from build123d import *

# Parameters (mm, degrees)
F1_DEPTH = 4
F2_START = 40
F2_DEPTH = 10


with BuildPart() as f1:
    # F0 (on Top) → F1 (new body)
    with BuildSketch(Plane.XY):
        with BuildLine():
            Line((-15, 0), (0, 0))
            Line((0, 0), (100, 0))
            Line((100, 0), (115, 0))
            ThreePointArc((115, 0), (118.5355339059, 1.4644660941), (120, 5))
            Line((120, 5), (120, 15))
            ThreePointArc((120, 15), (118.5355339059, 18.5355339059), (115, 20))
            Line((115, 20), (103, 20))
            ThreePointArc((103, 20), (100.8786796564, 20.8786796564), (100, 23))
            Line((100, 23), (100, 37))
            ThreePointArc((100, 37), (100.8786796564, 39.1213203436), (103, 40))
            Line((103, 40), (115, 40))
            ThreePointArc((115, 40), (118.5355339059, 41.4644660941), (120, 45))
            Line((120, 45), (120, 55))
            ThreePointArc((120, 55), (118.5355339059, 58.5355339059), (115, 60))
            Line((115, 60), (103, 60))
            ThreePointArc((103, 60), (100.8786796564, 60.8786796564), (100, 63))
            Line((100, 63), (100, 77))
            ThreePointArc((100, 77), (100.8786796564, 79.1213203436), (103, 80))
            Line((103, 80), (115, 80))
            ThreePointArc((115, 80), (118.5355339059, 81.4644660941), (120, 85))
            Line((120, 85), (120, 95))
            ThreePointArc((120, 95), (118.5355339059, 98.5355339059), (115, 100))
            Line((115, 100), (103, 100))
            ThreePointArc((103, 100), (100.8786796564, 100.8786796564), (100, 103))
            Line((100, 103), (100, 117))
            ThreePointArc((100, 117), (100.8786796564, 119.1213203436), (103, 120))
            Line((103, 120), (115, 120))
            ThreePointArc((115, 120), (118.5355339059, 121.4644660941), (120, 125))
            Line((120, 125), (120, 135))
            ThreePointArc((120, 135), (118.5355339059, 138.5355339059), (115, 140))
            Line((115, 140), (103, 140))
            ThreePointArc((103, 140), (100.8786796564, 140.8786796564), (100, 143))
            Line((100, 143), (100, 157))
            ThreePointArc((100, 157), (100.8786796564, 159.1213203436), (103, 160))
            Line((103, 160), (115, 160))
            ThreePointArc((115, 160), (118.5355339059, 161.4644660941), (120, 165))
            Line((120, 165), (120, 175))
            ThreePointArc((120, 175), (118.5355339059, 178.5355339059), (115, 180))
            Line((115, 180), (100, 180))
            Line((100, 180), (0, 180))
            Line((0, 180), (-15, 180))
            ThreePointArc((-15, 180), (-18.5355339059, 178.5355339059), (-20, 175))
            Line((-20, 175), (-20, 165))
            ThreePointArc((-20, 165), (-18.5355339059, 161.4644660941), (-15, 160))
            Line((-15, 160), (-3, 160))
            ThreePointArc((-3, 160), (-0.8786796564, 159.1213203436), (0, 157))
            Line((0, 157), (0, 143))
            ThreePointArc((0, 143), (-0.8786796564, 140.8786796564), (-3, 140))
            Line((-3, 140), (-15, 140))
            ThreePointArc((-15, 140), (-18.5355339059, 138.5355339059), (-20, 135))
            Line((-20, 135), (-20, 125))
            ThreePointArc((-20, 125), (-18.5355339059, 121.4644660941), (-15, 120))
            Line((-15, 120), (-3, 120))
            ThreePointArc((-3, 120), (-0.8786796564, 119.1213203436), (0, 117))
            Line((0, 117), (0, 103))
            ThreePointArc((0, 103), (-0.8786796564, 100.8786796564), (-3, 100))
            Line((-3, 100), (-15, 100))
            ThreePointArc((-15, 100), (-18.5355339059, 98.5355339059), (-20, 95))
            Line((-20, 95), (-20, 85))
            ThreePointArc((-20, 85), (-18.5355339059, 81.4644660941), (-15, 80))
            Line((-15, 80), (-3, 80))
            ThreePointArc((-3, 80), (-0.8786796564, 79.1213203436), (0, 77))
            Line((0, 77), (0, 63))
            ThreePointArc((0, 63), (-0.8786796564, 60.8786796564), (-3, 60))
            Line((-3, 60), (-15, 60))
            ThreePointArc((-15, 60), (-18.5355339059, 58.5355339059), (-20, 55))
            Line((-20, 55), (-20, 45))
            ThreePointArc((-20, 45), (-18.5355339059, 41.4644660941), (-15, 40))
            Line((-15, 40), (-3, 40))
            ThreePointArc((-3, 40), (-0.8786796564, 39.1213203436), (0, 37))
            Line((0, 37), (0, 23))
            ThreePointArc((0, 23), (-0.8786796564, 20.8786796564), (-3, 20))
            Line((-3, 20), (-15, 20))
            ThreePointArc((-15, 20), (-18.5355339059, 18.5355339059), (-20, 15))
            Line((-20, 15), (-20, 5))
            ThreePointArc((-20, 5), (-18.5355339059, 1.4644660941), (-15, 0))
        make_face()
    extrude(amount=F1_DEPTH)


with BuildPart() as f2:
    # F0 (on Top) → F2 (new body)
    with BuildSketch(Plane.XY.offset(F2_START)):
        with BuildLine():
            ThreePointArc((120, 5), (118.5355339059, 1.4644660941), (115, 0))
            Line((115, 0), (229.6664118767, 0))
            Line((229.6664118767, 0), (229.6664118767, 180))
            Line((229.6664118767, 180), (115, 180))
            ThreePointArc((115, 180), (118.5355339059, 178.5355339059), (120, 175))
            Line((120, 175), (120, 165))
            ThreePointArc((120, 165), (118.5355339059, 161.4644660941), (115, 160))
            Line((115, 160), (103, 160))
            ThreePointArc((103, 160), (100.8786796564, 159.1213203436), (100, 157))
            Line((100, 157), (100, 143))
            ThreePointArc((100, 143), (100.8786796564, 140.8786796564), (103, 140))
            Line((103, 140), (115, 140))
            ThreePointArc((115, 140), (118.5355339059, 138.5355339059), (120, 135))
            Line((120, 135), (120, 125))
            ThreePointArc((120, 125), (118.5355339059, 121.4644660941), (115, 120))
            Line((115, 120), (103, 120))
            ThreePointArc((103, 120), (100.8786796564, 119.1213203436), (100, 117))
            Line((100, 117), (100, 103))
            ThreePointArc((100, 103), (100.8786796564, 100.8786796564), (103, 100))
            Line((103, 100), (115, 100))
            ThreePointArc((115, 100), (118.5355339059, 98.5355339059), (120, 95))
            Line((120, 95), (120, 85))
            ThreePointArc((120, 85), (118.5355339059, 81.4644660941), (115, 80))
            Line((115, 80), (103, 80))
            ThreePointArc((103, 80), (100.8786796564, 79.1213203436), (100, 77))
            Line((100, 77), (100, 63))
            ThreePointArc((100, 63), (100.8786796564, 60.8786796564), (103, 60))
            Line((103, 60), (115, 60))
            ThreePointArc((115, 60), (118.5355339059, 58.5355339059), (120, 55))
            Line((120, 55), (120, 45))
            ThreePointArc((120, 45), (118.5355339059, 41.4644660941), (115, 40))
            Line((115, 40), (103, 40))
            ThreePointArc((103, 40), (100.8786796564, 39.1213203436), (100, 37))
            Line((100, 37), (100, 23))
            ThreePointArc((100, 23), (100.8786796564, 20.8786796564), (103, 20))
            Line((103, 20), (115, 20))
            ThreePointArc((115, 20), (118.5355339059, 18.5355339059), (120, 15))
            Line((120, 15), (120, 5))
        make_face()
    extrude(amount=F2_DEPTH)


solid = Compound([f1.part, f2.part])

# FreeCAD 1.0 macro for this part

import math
import FreeCAD as App
import Part
import Sketcher
from FreeCAD import Vector

doc = App.newDocument("Part")
params = doc.addObject("Spreadsheet::Sheet", "Params")
for row, (alias, value) in enumerate([
    ("sketch1_radius", "5 mm"),
    ("sketch1_radius2", "3 mm"),
    ("sketch1_width", "130 mm"),
    ("sketch1_width2", "12 mm"),
    ("sketch1_height", "10 mm"),
    ("pad1_length", "4 mm"),
    ("sketch2_radius", "5 mm"),
    ("sketch2_radius2", "3 mm"),
    ("sketch2_width", "12 mm"),
    ("sketch2_height", "180 mm"),
    ("sketch2_height2", "10 mm"),
    ("pad2_length", "10 mm"),
], start=1):
    params.set(f"A{row}", alias)
    params.set(f"B{row}", "=" + value)
    params.setAlias(f"B{row}", alias)

body = doc.addObject("PartDesign::Body", "Body")

# Sketch on XY plane
sketch1 = body.newObject("Sketcher::SketchObject", "Sketch")
sketch1.AttachmentSupport = (doc.getObject("XY_Plane"), [""])
sketch1.MapMode = "FlatFace"
sketch1.addGeometry([
    Part.LineSegment(Vector(-15, 0, 0), Vector(115, 0, 0)),  # 0
    Part.ArcOfCircle(Part.Circle(Vector(115, 5, 0), Vector(0, 0, 1), 5), math.radians(-90), math.radians(0)),  # 1
    Part.LineSegment(Vector(120, 5, 0), Vector(120, 15, 0)),  # 2
    Part.ArcOfCircle(Part.Circle(Vector(115, 15, 0), Vector(0, 0, 1), 5), math.radians(0), math.radians(90)),  # 3
    Part.LineSegment(Vector(115, 20, 0), Vector(103, 20, 0)),  # 4
    Part.ArcOfCircle(Part.Circle(Vector(103, 23, 0), Vector(0, 0, 1), 3), math.radians(180), math.radians(270)),  # 5
    Part.LineSegment(Vector(100, 23, 0), Vector(100, 37, 0)),  # 6
    Part.ArcOfCircle(Part.Circle(Vector(103, 37, 0), Vector(0, 0, 1), 3), math.radians(90), math.radians(180)),  # 7
    Part.LineSegment(Vector(103, 40, 0), Vector(115, 40, 0)),  # 8
    Part.ArcOfCircle(Part.Circle(Vector(115, 45, 0), Vector(0, 0, 1), 5), math.radians(-90), math.radians(0)),  # 9
    Part.LineSegment(Vector(120, 45, 0), Vector(120, 55, 0)),  # 10
    Part.ArcOfCircle(Part.Circle(Vector(115, 55, 0), Vector(0, 0, 1), 5), math.radians(0), math.radians(90)),  # 11
    Part.LineSegment(Vector(115, 60, 0), Vector(103, 60, 0)),  # 12
    Part.ArcOfCircle(Part.Circle(Vector(103, 63, 0), Vector(0, 0, 1), 3), math.radians(180), math.radians(270)),  # 13
    Part.LineSegment(Vector(100, 63, 0), Vector(100, 77, 0)),  # 14
    Part.ArcOfCircle(Part.Circle(Vector(103, 77, 0), Vector(0, 0, 1), 3), math.radians(90), math.radians(180)),  # 15
    Part.LineSegment(Vector(103, 80, 0), Vector(115, 80, 0)),  # 16
    Part.ArcOfCircle(Part.Circle(Vector(115, 85, 0), Vector(0, 0, 1), 5), math.radians(-90), math.radians(0)),  # 17
    Part.LineSegment(Vector(120, 85, 0), Vector(120, 95, 0)),  # 18
    Part.ArcOfCircle(Part.Circle(Vector(115, 95, 0), Vector(0, 0, 1), 5), math.radians(0), math.radians(90)),  # 19
    Part.LineSegment(Vector(115, 100, 0), Vector(103, 100, 0)),  # 20
    Part.ArcOfCircle(Part.Circle(Vector(103, 103, 0), Vector(0, 0, 1), 3), math.radians(180), math.radians(270)),  # 21
    Part.LineSegment(Vector(100, 103, 0), Vector(100, 117, 0)),  # 22
    Part.ArcOfCircle(Part.Circle(Vector(103, 117, 0), Vector(0, 0, 1), 3), math.radians(90), math.radians(180)),  # 23
    Part.LineSegment(Vector(103, 120, 0), Vector(115, 120, 0)),  # 24
    Part.ArcOfCircle(Part.Circle(Vector(115, 125, 0), Vector(0, 0, 1), 5), math.radians(-90), math.radians(0)),  # 25
    Part.LineSegment(Vector(120, 125, 0), Vector(120, 135, 0)),  # 26
    Part.ArcOfCircle(Part.Circle(Vector(115, 135, 0), Vector(0, 0, 1), 5), math.radians(0), math.radians(90)),  # 27
    Part.LineSegment(Vector(115, 140, 0), Vector(103, 140, 0)),  # 28
    Part.ArcOfCircle(Part.Circle(Vector(103, 143, 0), Vector(0, 0, 1), 3), math.radians(180), math.radians(270)),  # 29
    Part.LineSegment(Vector(100, 143, 0), Vector(100, 157, 0)),  # 30
    Part.ArcOfCircle(Part.Circle(Vector(103, 157, 0), Vector(0, 0, 1), 3), math.radians(90), math.radians(180)),  # 31
    Part.LineSegment(Vector(103, 160, 0), Vector(115, 160, 0)),  # 32
    Part.ArcOfCircle(Part.Circle(Vector(115, 165, 0), Vector(0, 0, 1), 5), math.radians(-90), math.radians(0)),  # 33
    Part.LineSegment(Vector(120, 165, 0), Vector(120, 175, 0)),  # 34
    Part.ArcOfCircle(Part.Circle(Vector(115, 175, 0), Vector(0, 0, 1), 5), math.radians(0), math.radians(90)),  # 35
    Part.LineSegment(Vector(115, 180, 0), Vector(-15, 180, 0)),  # 36
    Part.ArcOfCircle(Part.Circle(Vector(-15, 175, 0), Vector(0, 0, 1), 5), math.radians(90), math.radians(180)),  # 37
    Part.LineSegment(Vector(-20, 175, 0), Vector(-20, 165, 0)),  # 38
    Part.ArcOfCircle(Part.Circle(Vector(-15, 165, 0), Vector(0, 0, 1), 5), math.radians(180), math.radians(270)),  # 39
    Part.LineSegment(Vector(-15, 160, 0), Vector(-3, 160, 0)),  # 40
    Part.ArcOfCircle(Part.Circle(Vector(-3, 157, 0), Vector(0, 0, 1), 3), math.radians(0), math.radians(90)),  # 41
    Part.LineSegment(Vector(0, 157, 0), Vector(0, 143, 0)),  # 42
    Part.ArcOfCircle(Part.Circle(Vector(-3, 143, 0), Vector(0, 0, 1), 3), math.radians(-90), math.radians(0)),  # 43
    Part.LineSegment(Vector(-3, 140, 0), Vector(-15, 140, 0)),  # 44
    Part.ArcOfCircle(Part.Circle(Vector(-15, 135, 0), Vector(0, 0, 1), 5), math.radians(90), math.radians(180)),  # 45
    Part.LineSegment(Vector(-20, 135, 0), Vector(-20, 125, 0)),  # 46
    Part.ArcOfCircle(Part.Circle(Vector(-15, 125, 0), Vector(0, 0, 1), 5), math.radians(180), math.radians(270)),  # 47
    Part.LineSegment(Vector(-15, 120, 0), Vector(-3, 120, 0)),  # 48
    Part.ArcOfCircle(Part.Circle(Vector(-3, 117, 0), Vector(0, 0, 1), 3), math.radians(0), math.radians(90)),  # 49
    Part.LineSegment(Vector(0, 117, 0), Vector(0, 103, 0)),  # 50
    Part.ArcOfCircle(Part.Circle(Vector(-3, 103, 0), Vector(0, 0, 1), 3), math.radians(-90), math.radians(0)),  # 51
    Part.LineSegment(Vector(-3, 100, 0), Vector(-15, 100, 0)),  # 52
    Part.ArcOfCircle(Part.Circle(Vector(-15, 95, 0), Vector(0, 0, 1), 5), math.radians(90), math.radians(180)),  # 53
    Part.LineSegment(Vector(-20, 95, 0), Vector(-20, 85, 0)),  # 54
    Part.ArcOfCircle(Part.Circle(Vector(-15, 85, 0), Vector(0, 0, 1), 5), math.radians(180), math.radians(270)),  # 55
    Part.LineSegment(Vector(-15, 80, 0), Vector(-3, 80, 0)),  # 56
    Part.ArcOfCircle(Part.Circle(Vector(-3, 77, 0), Vector(0, 0, 1), 3), math.radians(0), math.radians(90)),  # 57
    Part.LineSegment(Vector(0, 77, 0), Vector(0, 63, 0)),  # 58
    Part.ArcOfCircle(Part.Circle(Vector(-3, 63, 0), Vector(0, 0, 1), 3), math.radians(-90), math.radians(0)),  # 59
    Part.LineSegment(Vector(-3, 60, 0), Vector(-15, 60, 0)),  # 60
    Part.ArcOfCircle(Part.Circle(Vector(-15, 55, 0), Vector(0, 0, 1), 5), math.radians(90), math.radians(180)),  # 61
    Part.LineSegment(Vector(-20, 55, 0), Vector(-20, 45, 0)),  # 62
    Part.ArcOfCircle(Part.Circle(Vector(-15, 45, 0), Vector(0, 0, 1), 5), math.radians(180), math.radians(270)),  # 63
    Part.LineSegment(Vector(-15, 40, 0), Vector(-3, 40, 0)),  # 64
    Part.ArcOfCircle(Part.Circle(Vector(-3, 37, 0), Vector(0, 0, 1), 3), math.radians(0), math.radians(90)),  # 65
    Part.LineSegment(Vector(0, 37, 0), Vector(0, 23, 0)),  # 66
    Part.ArcOfCircle(Part.Circle(Vector(-3, 23, 0), Vector(0, 0, 1), 3), math.radians(-90), math.radians(0)),  # 67
    Part.LineSegment(Vector(-3, 20, 0), Vector(-15, 20, 0)),  # 68
    Part.ArcOfCircle(Part.Circle(Vector(-15, 15, 0), Vector(0, 0, 1), 5), math.radians(90), math.radians(180)),  # 69
    Part.LineSegment(Vector(-20, 15, 0), Vector(-20, 5, 0)),  # 70
    Part.ArcOfCircle(Part.Circle(Vector(-15, 5, 0), Vector(0, 0, 1), 5), math.radians(180), math.radians(270)),  # 71
], False)
sketch1.addConstraint([
    Sketcher.Constraint("Tangent", 0, 2, 1, 1),
    Sketcher.Constraint("Tangent", 1, 2, 2, 1),
    Sketcher.Constraint("Tangent", 2, 2, 3, 1),
    Sketcher.Constraint("Tangent", 3, 2, 4, 1),
    Sketcher.Constraint("Tangent", 4, 2, 5, 2),
    Sketcher.Constraint("Tangent", 5, 1, 6, 1),
    Sketcher.Constraint("Tangent", 6, 2, 7, 2),
    Sketcher.Constraint("Tangent", 7, 1, 8, 1),
    Sketcher.Constraint("Tangent", 8, 2, 9, 1),
    Sketcher.Constraint("Tangent", 9, 2, 10, 1),
    Sketcher.Constraint("Tangent", 10, 2, 11, 1),
    Sketcher.Constraint("Tangent", 11, 2, 12, 1),
    Sketcher.Constraint("Tangent", 12, 2, 13, 2),
    Sketcher.Constraint("Tangent", 13, 1, 14, 1),
    Sketcher.Constraint("Tangent", 14, 2, 15, 2),
    Sketcher.Constraint("Tangent", 15, 1, 16, 1),
    Sketcher.Constraint("Tangent", 16, 2, 17, 1),
    Sketcher.Constraint("Tangent", 17, 2, 18, 1),
    Sketcher.Constraint("Tangent", 18, 2, 19, 1),
    Sketcher.Constraint("Tangent", 19, 2, 20, 1),
    Sketcher.Constraint("Tangent", 20, 2, 21, 2),
    Sketcher.Constraint("Tangent", 21, 1, 22, 1),
    Sketcher.Constraint("Tangent", 22, 2, 23, 2),
    Sketcher.Constraint("Tangent", 23, 1, 24, 1),
    Sketcher.Constraint("Tangent", 24, 2, 25, 1),
    Sketcher.Constraint("Tangent", 25, 2, 26, 1),
    Sketcher.Constraint("Tangent", 26, 2, 27, 1),
    Sketcher.Constraint("Tangent", 27, 2, 28, 1),
    Sketcher.Constraint("Tangent", 28, 2, 29, 2),
    Sketcher.Constraint("Tangent", 29, 1, 30, 1),
    Sketcher.Constraint("Tangent", 30, 2, 31, 2),
    Sketcher.Constraint("Tangent", 31, 1, 32, 1),
    Sketcher.Constraint("Tangent", 32, 2, 33, 1),
    Sketcher.Constraint("Tangent", 33, 2, 34, 1),
    Sketcher.Constraint("Tangent", 34, 2, 35, 1),
    Sketcher.Constraint("Tangent", 35, 2, 36, 1),
    Sketcher.Constraint("Tangent", 36, 2, 37, 1),
    Sketcher.Constraint("Tangent", 37, 2, 38, 1),
    Sketcher.Constraint("Tangent", 38, 2, 39, 1),
    Sketcher.Constraint("Tangent", 39, 2, 40, 1),
    Sketcher.Constraint("Tangent", 40, 2, 41, 2),
    Sketcher.Constraint("Tangent", 41, 1, 42, 1),
    Sketcher.Constraint("Tangent", 42, 2, 43, 2),
    Sketcher.Constraint("Tangent", 43, 1, 44, 1),
    Sketcher.Constraint("Tangent", 44, 2, 45, 1),
    Sketcher.Constraint("Tangent", 45, 2, 46, 1),
    Sketcher.Constraint("Tangent", 46, 2, 47, 1),
    Sketcher.Constraint("Tangent", 47, 2, 48, 1),
    Sketcher.Constraint("Tangent", 48, 2, 49, 2),
    Sketcher.Constraint("Tangent", 49, 1, 50, 1),
    Sketcher.Constraint("Tangent", 50, 2, 51, 2),
    Sketcher.Constraint("Tangent", 51, 1, 52, 1),
    Sketcher.Constraint("Tangent", 52, 2, 53, 1),
    Sketcher.Constraint("Tangent", 53, 2, 54, 1),
    Sketcher.Constraint("Tangent", 54, 2, 55, 1),
    Sketcher.Constraint("Tangent", 55, 2, 56, 1),
    Sketcher.Constraint("Tangent", 56, 2, 57, 2),
    Sketcher.Constraint("Tangent", 57, 1, 58, 1),
    Sketcher.Constraint("Tangent", 58, 2, 59, 2),
    Sketcher.Constraint("Tangent", 59, 1, 60, 1),
    Sketcher.Constraint("Tangent", 60, 2, 61, 1),
    Sketcher.Constraint("Tangent", 61, 2, 62, 1),
    Sketcher.Constraint("Tangent", 62, 2, 63, 1),
    Sketcher.Constraint("Tangent", 63, 2, 64, 1),
    Sketcher.Constraint("Tangent", 64, 2, 65, 2),
    Sketcher.Constraint("Tangent", 65, 1, 66, 1),
    Sketcher.Constraint("Tangent", 66, 2, 67, 2),
    Sketcher.Constraint("Tangent", 67, 1, 68, 1),
    Sketcher.Constraint("Tangent", 68, 2, 69, 1),
    Sketcher.Constraint("Tangent", 69, 2, 70, 1),
    Sketcher.Constraint("Tangent", 70, 2, 71, 1),
    Sketcher.Constraint("Tangent", 71, 2, 0, 1),
    Sketcher.Constraint("Horizontal", 0),
    Sketcher.Constraint("Vertical", 2),
    Sketcher.Constraint("Horizontal", 4),
    Sketcher.Constraint("Vertical", 6),
    Sketcher.Constraint("Horizontal", 8),
    Sketcher.Constraint("Vertical", 10),
    Sketcher.Constraint("Horizontal", 12),
    Sketcher.Constraint("Vertical", 14),
    Sketcher.Constraint("Horizontal", 16),
    Sketcher.Constraint("Vertical", 18),
    Sketcher.Constraint("Horizontal", 20),
    Sketcher.Constraint("Vertical", 22),
    Sketcher.Constraint("Horizontal", 24),
    Sketcher.Constraint("Vertical", 26),
    Sketcher.Constraint("Horizontal", 28),
    Sketcher.Constraint("Vertical", 30),
    Sketcher.Constraint("Horizontal", 32),
    Sketcher.Constraint("Vertical", 34),
    Sketcher.Constraint("Horizontal", 36),
    Sketcher.Constraint("Vertical", 38),
    Sketcher.Constraint("Horizontal", 40),
    Sketcher.Constraint("Vertical", 42),
    Sketcher.Constraint("Horizontal", 44),
    Sketcher.Constraint("Vertical", 46),
    Sketcher.Constraint("Horizontal", 48),
    Sketcher.Constraint("Vertical", 50),
    Sketcher.Constraint("Horizontal", 52),
    Sketcher.Constraint("Vertical", 54),
    Sketcher.Constraint("Horizontal", 56),
    Sketcher.Constraint("Vertical", 58),
    Sketcher.Constraint("Horizontal", 60),
    Sketcher.Constraint("Vertical", 62),
    Sketcher.Constraint("Horizontal", 64),
    Sketcher.Constraint("Vertical", 66),
    Sketcher.Constraint("Horizontal", 68),
    Sketcher.Constraint("Vertical", 70),
    Sketcher.Constraint("Equal", 1, 3),
    Sketcher.Constraint("Equal", 5, 7),
    Sketcher.Constraint("Equal", 3, 9),
    Sketcher.Constraint("Equal", 9, 11),
    Sketcher.Constraint("Equal", 7, 13),
    Sketcher.Constraint("Equal", 13, 15),
    Sketcher.Constraint("Equal", 11, 17),
    Sketcher.Constraint("Equal", 17, 19),
    Sketcher.Constraint("Equal", 15, 21),
    Sketcher.Constraint("Equal", 21, 23),
    Sketcher.Constraint("Equal", 19, 25),
    Sketcher.Constraint("Equal", 25, 27),
    Sketcher.Constraint("Equal", 23, 29),
    Sketcher.Constraint("Equal", 29, 31),
    Sketcher.Constraint("Equal", 27, 33),
    Sketcher.Constraint("Equal", 33, 35),
    Sketcher.Constraint("Equal", 35, 37),
    Sketcher.Constraint("Equal", 37, 39),
    Sketcher.Constraint("Equal", 31, 41),
    Sketcher.Constraint("Equal", 41, 43),
    Sketcher.Constraint("Equal", 39, 45),
    Sketcher.Constraint("Equal", 45, 47),
    Sketcher.Constraint("Equal", 43, 49),
    Sketcher.Constraint("Equal", 49, 51),
    Sketcher.Constraint("Equal", 47, 53),
    Sketcher.Constraint("Equal", 53, 55),
    Sketcher.Constraint("Equal", 51, 57),
    Sketcher.Constraint("Equal", 57, 59),
    Sketcher.Constraint("Equal", 55, 61),
    Sketcher.Constraint("Equal", 61, 63),
    Sketcher.Constraint("Equal", 59, 65),
    Sketcher.Constraint("Equal", 65, 67),
    Sketcher.Constraint("Equal", 63, 69),
    Sketcher.Constraint("Equal", 69, 71),
    Sketcher.Constraint("PointOnObject", 0, 2, -1),
    Sketcher.Constraint("PointOnObject", 41, 1, -2),
    Sketcher.Constraint("PointOnObject", 49, 1, -2),
    Sketcher.Constraint("PointOnObject", 57, 1, -2),
    Sketcher.Constraint("PointOnObject", 65, 1, -2),
    Sketcher.Constraint("Horizontal", 33, 3, 39, 3),
    Sketcher.Constraint("Horizontal", 29, 3, 43, 3),
    Sketcher.Constraint("Horizontal", 25, 3, 47, 3),
    Sketcher.Constraint("Horizontal", 21, 3, 51, 3),
    Sketcher.Constraint("Horizontal", 17, 3, 55, 3),
    Sketcher.Constraint("Horizontal", 13, 3, 59, 3),
    Sketcher.Constraint("Horizontal", 9, 3, 63, 3),
    Sketcher.Constraint("Horizontal", 5, 3, 67, 3),
    Sketcher.Constraint("Vertical", 3, 3, 9, 3),
    Sketcher.Constraint("Vertical", 7, 3, 13, 3),
    Sketcher.Constraint("Vertical", 11, 3, 17, 3),
    Sketcher.Constraint("Vertical", 15, 3, 21, 3),
    Sketcher.Constraint("Vertical", 19, 3, 25, 3),
    Sketcher.Constraint("Vertical", 23, 3, 29, 3),
    Sketcher.Constraint("Vertical", 27, 3, 33, 3),
    Sketcher.Constraint("Vertical", 39, 3, 45, 3),
    Sketcher.Constraint("Vertical", 47, 3, 53, 3),
    Sketcher.Constraint("Vertical", 55, 3, 61, 3),
    Sketcher.Constraint("Vertical", 63, 3, 69, 3),
    Sketcher.Constraint("Equal", 32, 40),
    Sketcher.Constraint("Equal", 2, 10),
    Sketcher.Constraint("Equal", 6, 14),
    Sketcher.Constraint("Equal", 10, 18),
    Sketcher.Constraint("Equal", 14, 22),
    Sketcher.Constraint("Equal", 18, 26),
    Sketcher.Constraint("Equal", 22, 30),
    Sketcher.Constraint("Equal", 26, 34),
    Sketcher.Constraint("Radius", 1, 5.0),
    Sketcher.Constraint("Radius", 5, 3.0),
    Sketcher.Constraint("DistanceX", 0, 1, 0, 2, 130.0),
    Sketcher.Constraint("DistanceX", 4, 2, 4, 1, 12.0),
    Sketcher.Constraint("DistanceY", 2, 1, 2, 2, 10.0),
    Sketcher.Constraint("DistanceY", 6, 1, 6, 2, 14.0),
])
sketch1.setExpression("Constraints[174]", "Params.sketch1_radius")
sketch1.setExpression("Constraints[175]", "Params.sketch1_radius2")
sketch1.setExpression("Constraints[176]", "Params.sketch1_width")
sketch1.setExpression("Constraints[177]", "Params.sketch1_width2")
sketch1.setExpression("Constraints[178]", "Params.sketch1_height")
pad1 = body.newObject("PartDesign::Pad", "Pad")
pad1.Profile = sketch1
pad1.setExpression("Length", "Params.pad1_length")
body2 = doc.addObject("PartDesign::Body", "Body001")

# Sketch on XY plane
sketch2 = body2.newObject("Sketcher::SketchObject", "Sketch001")
sketch2.AttachmentSupport = (doc.getObject("XY_Plane001"), [""])
sketch2.MapMode = "FlatFace"
sketch2.AttachmentOffset = App.Placement(Vector(0, 0, 40), App.Rotation())
sketch2.addGeometry([
    Part.ArcOfCircle(Part.Circle(Vector(115, 5, 0), Vector(0, 0, 1), 5), math.radians(-90), math.radians(0)),  # 0
    Part.LineSegment(Vector(115, 0, 0), Vector(229.666412, 0, 0)),  # 1
    Part.LineSegment(Vector(229.666412, 0, 0), Vector(229.666412, 180, 0)),  # 2
    Part.LineSegment(Vector(229.666412, 180, 0), Vector(115, 180, 0)),  # 3
    Part.ArcOfCircle(Part.Circle(Vector(115, 175, 0), Vector(0, 0, 1), 5), math.radians(0), math.radians(90)),  # 4
    Part.LineSegment(Vector(120, 175, 0), Vector(120, 165, 0)),  # 5
    Part.ArcOfCircle(Part.Circle(Vector(115, 165, 0), Vector(0, 0, 1), 5), math.radians(-90), math.radians(0)),  # 6
    Part.LineSegment(Vector(115, 160, 0), Vector(103, 160, 0)),  # 7
    Part.ArcOfCircle(Part.Circle(Vector(103, 157, 0), Vector(0, 0, 1), 3), math.radians(90), math.radians(180)),  # 8
    Part.LineSegment(Vector(100, 157, 0), Vector(100, 143, 0)),  # 9
    Part.ArcOfCircle(Part.Circle(Vector(103, 143, 0), Vector(0, 0, 1), 3), math.radians(180), math.radians(270)),  # 10
    Part.LineSegment(Vector(103, 140, 0), Vector(115, 140, 0)),  # 11
    Part.ArcOfCircle(Part.Circle(Vector(115, 135, 0), Vector(0, 0, 1), 5), math.radians(0), math.radians(90)),  # 12
    Part.LineSegment(Vector(120, 135, 0), Vector(120, 125, 0)),  # 13
    Part.ArcOfCircle(Part.Circle(Vector(115, 125, 0), Vector(0, 0, 1), 5), math.radians(-90), math.radians(0)),  # 14
    Part.LineSegment(Vector(115, 120, 0), Vector(103, 120, 0)),  # 15
    Part.ArcOfCircle(Part.Circle(Vector(103, 117, 0), Vector(0, 0, 1), 3), math.radians(90), math.radians(180)),  # 16
    Part.LineSegment(Vector(100, 117, 0), Vector(100, 103, 0)),  # 17
    Part.ArcOfCircle(Part.Circle(Vector(103, 103, 0), Vector(0, 0, 1), 3), math.radians(180), math.radians(270)),  # 18
    Part.LineSegment(Vector(103, 100, 0), Vector(115, 100, 0)),  # 19
    Part.ArcOfCircle(Part.Circle(Vector(115, 95, 0), Vector(0, 0, 1), 5), math.radians(0), math.radians(90)),  # 20
    Part.LineSegment(Vector(120, 95, 0), Vector(120, 85, 0)),  # 21
    Part.ArcOfCircle(Part.Circle(Vector(115, 85, 0), Vector(0, 0, 1), 5), math.radians(-90), math.radians(0)),  # 22
    Part.LineSegment(Vector(115, 80, 0), Vector(103, 80, 0)),  # 23
    Part.ArcOfCircle(Part.Circle(Vector(103, 77, 0), Vector(0, 0, 1), 3), math.radians(90), math.radians(180)),  # 24
    Part.LineSegment(Vector(100, 77, 0), Vector(100, 63, 0)),  # 25
    Part.ArcOfCircle(Part.Circle(Vector(103, 63, 0), Vector(0, 0, 1), 3), math.radians(180), math.radians(270)),  # 26
    Part.LineSegment(Vector(103, 60, 0), Vector(115, 60, 0)),  # 27
    Part.ArcOfCircle(Part.Circle(Vector(115, 55, 0), Vector(0, 0, 1), 5), math.radians(0), math.radians(90)),  # 28
    Part.LineSegment(Vector(120, 55, 0), Vector(120, 45, 0)),  # 29
    Part.ArcOfCircle(Part.Circle(Vector(115, 45, 0), Vector(0, 0, 1), 5), math.radians(-90), math.radians(0)),  # 30
    Part.LineSegment(Vector(115, 40, 0), Vector(103, 40, 0)),  # 31
    Part.ArcOfCircle(Part.Circle(Vector(103, 37, 0), Vector(0, 0, 1), 3), math.radians(90), math.radians(180)),  # 32
    Part.LineSegment(Vector(100, 37, 0), Vector(100, 23, 0)),  # 33
    Part.ArcOfCircle(Part.Circle(Vector(103, 23, 0), Vector(0, 0, 1), 3), math.radians(180), math.radians(270)),  # 34
    Part.LineSegment(Vector(103, 20, 0), Vector(115, 20, 0)),  # 35
    Part.ArcOfCircle(Part.Circle(Vector(115, 15, 0), Vector(0, 0, 1), 5), math.radians(0), math.radians(90)),  # 36
    Part.LineSegment(Vector(120, 15, 0), Vector(120, 5, 0)),  # 37
], False)
sketch2.addConstraint([
    Sketcher.Constraint("Tangent", 0, 1, 1, 1),
    Sketcher.Constraint("Coincident", 1, 2, 2, 1),
    Sketcher.Constraint("Coincident", 2, 2, 3, 1),
    Sketcher.Constraint("Tangent", 3, 2, 4, 2),
    Sketcher.Constraint("Tangent", 4, 1, 5, 1),
    Sketcher.Constraint("Tangent", 5, 2, 6, 2),
    Sketcher.Constraint("Tangent", 6, 1, 7, 1),
    Sketcher.Constraint("Tangent", 7, 2, 8, 1),
    Sketcher.Constraint("Tangent", 8, 2, 9, 1),
    Sketcher.Constraint("Tangent", 9, 2, 10, 1),
    Sketcher.Constraint("Tangent", 10, 2, 11, 1),
    Sketcher.Constraint("Tangent", 11, 2, 12, 2),
    Sketcher.Constraint("Tangent", 12, 1, 13, 1),
    Sketcher.Constraint("Tangent", 13, 2, 14, 2),
    Sketcher.Constraint("Tangent", 14, 1, 15, 1),
    Sketcher.Constraint("Tangent", 15, 2, 16, 1),
    Sketcher.Constraint("Tangent", 16, 2, 17, 1),
    Sketcher.Constraint("Tangent", 17, 2, 18, 1),
    Sketcher.Constraint("Tangent", 18, 2, 19, 1),
    Sketcher.Constraint("Tangent", 19, 2, 20, 2),
    Sketcher.Constraint("Tangent", 20, 1, 21, 1),
    Sketcher.Constraint("Tangent", 21, 2, 22, 2),
    Sketcher.Constraint("Tangent", 22, 1, 23, 1),
    Sketcher.Constraint("Tangent", 23, 2, 24, 1),
    Sketcher.Constraint("Tangent", 24, 2, 25, 1),
    Sketcher.Constraint("Tangent", 25, 2, 26, 1),
    Sketcher.Constraint("Tangent", 26, 2, 27, 1),
    Sketcher.Constraint("Tangent", 27, 2, 28, 2),
    Sketcher.Constraint("Tangent", 28, 1, 29, 1),
    Sketcher.Constraint("Tangent", 29, 2, 30, 2),
    Sketcher.Constraint("Tangent", 30, 1, 31, 1),
    Sketcher.Constraint("Tangent", 31, 2, 32, 1),
    Sketcher.Constraint("Tangent", 32, 2, 33, 1),
    Sketcher.Constraint("Tangent", 33, 2, 34, 1),
    Sketcher.Constraint("Tangent", 34, 2, 35, 1),
    Sketcher.Constraint("Tangent", 35, 2, 36, 2),
    Sketcher.Constraint("Tangent", 36, 1, 37, 1),
    Sketcher.Constraint("Tangent", 37, 2, 0, 2),
    Sketcher.Constraint("Horizontal", 1),
    Sketcher.Constraint("Vertical", 2),
    Sketcher.Constraint("Horizontal", 3),
    Sketcher.Constraint("Vertical", 5),
    Sketcher.Constraint("Horizontal", 7),
    Sketcher.Constraint("Vertical", 9),
    Sketcher.Constraint("Horizontal", 11),
    Sketcher.Constraint("Vertical", 13),
    Sketcher.Constraint("Horizontal", 15),
    Sketcher.Constraint("Vertical", 17),
    Sketcher.Constraint("Horizontal", 19),
    Sketcher.Constraint("Vertical", 21),
    Sketcher.Constraint("Horizontal", 23),
    Sketcher.Constraint("Vertical", 25),
    Sketcher.Constraint("Horizontal", 27),
    Sketcher.Constraint("Vertical", 29),
    Sketcher.Constraint("Horizontal", 31),
    Sketcher.Constraint("Vertical", 33),
    Sketcher.Constraint("Horizontal", 35),
    Sketcher.Constraint("Vertical", 37),
    Sketcher.Constraint("Equal", 0, 4),
    Sketcher.Constraint("Equal", 4, 6),
    Sketcher.Constraint("Equal", 8, 10),
    Sketcher.Constraint("Equal", 6, 12),
    Sketcher.Constraint("Equal", 12, 14),
    Sketcher.Constraint("Equal", 10, 16),
    Sketcher.Constraint("Equal", 16, 18),
    Sketcher.Constraint("Equal", 14, 20),
    Sketcher.Constraint("Equal", 20, 22),
    Sketcher.Constraint("Equal", 18, 24),
    Sketcher.Constraint("Equal", 24, 26),
    Sketcher.Constraint("Equal", 22, 28),
    Sketcher.Constraint("Equal", 28, 30),
    Sketcher.Constraint("Equal", 26, 32),
    Sketcher.Constraint("Equal", 32, 34),
    Sketcher.Constraint("Equal", 30, 36),
    Sketcher.Constraint("PointOnObject", 0, 1, -1),
    Sketcher.Constraint("Vertical", 0, 3, 4, 3),
    Sketcher.Constraint("Vertical", 6, 3, 12, 3),
    Sketcher.Constraint("Vertical", 10, 3, 16, 3),
    Sketcher.Constraint("Vertical", 14, 3, 20, 3),
    Sketcher.Constraint("Vertical", 18, 3, 24, 3),
    Sketcher.Constraint("Vertical", 22, 3, 28, 3),
    Sketcher.Constraint("Vertical", 26, 3, 32, 3),
    Sketcher.Constraint("Equal", 5, 13),
    Sketcher.Constraint("Equal", 9, 17),
    Sketcher.Constraint("Equal", 13, 21),
    Sketcher.Constraint("Equal", 17, 25),
    Sketcher.Constraint("Equal", 21, 29),
    Sketcher.Constraint("Equal", 25, 33),
    Sketcher.Constraint("Equal", 29, 37),
    Sketcher.Constraint("Radius", 0, 5.0),
    Sketcher.Constraint("Radius", 8, 3.0),
    Sketcher.Constraint("DistanceX", 7, 2, 7, 1, 12.0),
    Sketcher.Constraint("DistanceY", 2, 1, 2, 2, 180.0),
    Sketcher.Constraint("DistanceY", 5, 2, 5, 1, 10.0),
    Sketcher.Constraint("DistanceX", -1, 1, 0, 3, 115.0),
    Sketcher.Constraint("DistanceX", 1, 1, 1, 2, 114.666412),
])
sketch2.setExpression("Constraints[89]", "Params.sketch2_radius")
sketch2.setExpression("Constraints[90]", "Params.sketch2_radius2")
sketch2.setExpression("Constraints[91]", "Params.sketch2_width")
sketch2.setExpression("Constraints[92]", "Params.sketch2_height")
sketch2.setExpression("Constraints[93]", "Params.sketch2_height2")
pad2 = body2.newObject("PartDesign::Pad", "Pad001")
pad2.Profile = sketch2
pad2.setExpression("Length", "Params.pad2_length")

doc.recompute()
